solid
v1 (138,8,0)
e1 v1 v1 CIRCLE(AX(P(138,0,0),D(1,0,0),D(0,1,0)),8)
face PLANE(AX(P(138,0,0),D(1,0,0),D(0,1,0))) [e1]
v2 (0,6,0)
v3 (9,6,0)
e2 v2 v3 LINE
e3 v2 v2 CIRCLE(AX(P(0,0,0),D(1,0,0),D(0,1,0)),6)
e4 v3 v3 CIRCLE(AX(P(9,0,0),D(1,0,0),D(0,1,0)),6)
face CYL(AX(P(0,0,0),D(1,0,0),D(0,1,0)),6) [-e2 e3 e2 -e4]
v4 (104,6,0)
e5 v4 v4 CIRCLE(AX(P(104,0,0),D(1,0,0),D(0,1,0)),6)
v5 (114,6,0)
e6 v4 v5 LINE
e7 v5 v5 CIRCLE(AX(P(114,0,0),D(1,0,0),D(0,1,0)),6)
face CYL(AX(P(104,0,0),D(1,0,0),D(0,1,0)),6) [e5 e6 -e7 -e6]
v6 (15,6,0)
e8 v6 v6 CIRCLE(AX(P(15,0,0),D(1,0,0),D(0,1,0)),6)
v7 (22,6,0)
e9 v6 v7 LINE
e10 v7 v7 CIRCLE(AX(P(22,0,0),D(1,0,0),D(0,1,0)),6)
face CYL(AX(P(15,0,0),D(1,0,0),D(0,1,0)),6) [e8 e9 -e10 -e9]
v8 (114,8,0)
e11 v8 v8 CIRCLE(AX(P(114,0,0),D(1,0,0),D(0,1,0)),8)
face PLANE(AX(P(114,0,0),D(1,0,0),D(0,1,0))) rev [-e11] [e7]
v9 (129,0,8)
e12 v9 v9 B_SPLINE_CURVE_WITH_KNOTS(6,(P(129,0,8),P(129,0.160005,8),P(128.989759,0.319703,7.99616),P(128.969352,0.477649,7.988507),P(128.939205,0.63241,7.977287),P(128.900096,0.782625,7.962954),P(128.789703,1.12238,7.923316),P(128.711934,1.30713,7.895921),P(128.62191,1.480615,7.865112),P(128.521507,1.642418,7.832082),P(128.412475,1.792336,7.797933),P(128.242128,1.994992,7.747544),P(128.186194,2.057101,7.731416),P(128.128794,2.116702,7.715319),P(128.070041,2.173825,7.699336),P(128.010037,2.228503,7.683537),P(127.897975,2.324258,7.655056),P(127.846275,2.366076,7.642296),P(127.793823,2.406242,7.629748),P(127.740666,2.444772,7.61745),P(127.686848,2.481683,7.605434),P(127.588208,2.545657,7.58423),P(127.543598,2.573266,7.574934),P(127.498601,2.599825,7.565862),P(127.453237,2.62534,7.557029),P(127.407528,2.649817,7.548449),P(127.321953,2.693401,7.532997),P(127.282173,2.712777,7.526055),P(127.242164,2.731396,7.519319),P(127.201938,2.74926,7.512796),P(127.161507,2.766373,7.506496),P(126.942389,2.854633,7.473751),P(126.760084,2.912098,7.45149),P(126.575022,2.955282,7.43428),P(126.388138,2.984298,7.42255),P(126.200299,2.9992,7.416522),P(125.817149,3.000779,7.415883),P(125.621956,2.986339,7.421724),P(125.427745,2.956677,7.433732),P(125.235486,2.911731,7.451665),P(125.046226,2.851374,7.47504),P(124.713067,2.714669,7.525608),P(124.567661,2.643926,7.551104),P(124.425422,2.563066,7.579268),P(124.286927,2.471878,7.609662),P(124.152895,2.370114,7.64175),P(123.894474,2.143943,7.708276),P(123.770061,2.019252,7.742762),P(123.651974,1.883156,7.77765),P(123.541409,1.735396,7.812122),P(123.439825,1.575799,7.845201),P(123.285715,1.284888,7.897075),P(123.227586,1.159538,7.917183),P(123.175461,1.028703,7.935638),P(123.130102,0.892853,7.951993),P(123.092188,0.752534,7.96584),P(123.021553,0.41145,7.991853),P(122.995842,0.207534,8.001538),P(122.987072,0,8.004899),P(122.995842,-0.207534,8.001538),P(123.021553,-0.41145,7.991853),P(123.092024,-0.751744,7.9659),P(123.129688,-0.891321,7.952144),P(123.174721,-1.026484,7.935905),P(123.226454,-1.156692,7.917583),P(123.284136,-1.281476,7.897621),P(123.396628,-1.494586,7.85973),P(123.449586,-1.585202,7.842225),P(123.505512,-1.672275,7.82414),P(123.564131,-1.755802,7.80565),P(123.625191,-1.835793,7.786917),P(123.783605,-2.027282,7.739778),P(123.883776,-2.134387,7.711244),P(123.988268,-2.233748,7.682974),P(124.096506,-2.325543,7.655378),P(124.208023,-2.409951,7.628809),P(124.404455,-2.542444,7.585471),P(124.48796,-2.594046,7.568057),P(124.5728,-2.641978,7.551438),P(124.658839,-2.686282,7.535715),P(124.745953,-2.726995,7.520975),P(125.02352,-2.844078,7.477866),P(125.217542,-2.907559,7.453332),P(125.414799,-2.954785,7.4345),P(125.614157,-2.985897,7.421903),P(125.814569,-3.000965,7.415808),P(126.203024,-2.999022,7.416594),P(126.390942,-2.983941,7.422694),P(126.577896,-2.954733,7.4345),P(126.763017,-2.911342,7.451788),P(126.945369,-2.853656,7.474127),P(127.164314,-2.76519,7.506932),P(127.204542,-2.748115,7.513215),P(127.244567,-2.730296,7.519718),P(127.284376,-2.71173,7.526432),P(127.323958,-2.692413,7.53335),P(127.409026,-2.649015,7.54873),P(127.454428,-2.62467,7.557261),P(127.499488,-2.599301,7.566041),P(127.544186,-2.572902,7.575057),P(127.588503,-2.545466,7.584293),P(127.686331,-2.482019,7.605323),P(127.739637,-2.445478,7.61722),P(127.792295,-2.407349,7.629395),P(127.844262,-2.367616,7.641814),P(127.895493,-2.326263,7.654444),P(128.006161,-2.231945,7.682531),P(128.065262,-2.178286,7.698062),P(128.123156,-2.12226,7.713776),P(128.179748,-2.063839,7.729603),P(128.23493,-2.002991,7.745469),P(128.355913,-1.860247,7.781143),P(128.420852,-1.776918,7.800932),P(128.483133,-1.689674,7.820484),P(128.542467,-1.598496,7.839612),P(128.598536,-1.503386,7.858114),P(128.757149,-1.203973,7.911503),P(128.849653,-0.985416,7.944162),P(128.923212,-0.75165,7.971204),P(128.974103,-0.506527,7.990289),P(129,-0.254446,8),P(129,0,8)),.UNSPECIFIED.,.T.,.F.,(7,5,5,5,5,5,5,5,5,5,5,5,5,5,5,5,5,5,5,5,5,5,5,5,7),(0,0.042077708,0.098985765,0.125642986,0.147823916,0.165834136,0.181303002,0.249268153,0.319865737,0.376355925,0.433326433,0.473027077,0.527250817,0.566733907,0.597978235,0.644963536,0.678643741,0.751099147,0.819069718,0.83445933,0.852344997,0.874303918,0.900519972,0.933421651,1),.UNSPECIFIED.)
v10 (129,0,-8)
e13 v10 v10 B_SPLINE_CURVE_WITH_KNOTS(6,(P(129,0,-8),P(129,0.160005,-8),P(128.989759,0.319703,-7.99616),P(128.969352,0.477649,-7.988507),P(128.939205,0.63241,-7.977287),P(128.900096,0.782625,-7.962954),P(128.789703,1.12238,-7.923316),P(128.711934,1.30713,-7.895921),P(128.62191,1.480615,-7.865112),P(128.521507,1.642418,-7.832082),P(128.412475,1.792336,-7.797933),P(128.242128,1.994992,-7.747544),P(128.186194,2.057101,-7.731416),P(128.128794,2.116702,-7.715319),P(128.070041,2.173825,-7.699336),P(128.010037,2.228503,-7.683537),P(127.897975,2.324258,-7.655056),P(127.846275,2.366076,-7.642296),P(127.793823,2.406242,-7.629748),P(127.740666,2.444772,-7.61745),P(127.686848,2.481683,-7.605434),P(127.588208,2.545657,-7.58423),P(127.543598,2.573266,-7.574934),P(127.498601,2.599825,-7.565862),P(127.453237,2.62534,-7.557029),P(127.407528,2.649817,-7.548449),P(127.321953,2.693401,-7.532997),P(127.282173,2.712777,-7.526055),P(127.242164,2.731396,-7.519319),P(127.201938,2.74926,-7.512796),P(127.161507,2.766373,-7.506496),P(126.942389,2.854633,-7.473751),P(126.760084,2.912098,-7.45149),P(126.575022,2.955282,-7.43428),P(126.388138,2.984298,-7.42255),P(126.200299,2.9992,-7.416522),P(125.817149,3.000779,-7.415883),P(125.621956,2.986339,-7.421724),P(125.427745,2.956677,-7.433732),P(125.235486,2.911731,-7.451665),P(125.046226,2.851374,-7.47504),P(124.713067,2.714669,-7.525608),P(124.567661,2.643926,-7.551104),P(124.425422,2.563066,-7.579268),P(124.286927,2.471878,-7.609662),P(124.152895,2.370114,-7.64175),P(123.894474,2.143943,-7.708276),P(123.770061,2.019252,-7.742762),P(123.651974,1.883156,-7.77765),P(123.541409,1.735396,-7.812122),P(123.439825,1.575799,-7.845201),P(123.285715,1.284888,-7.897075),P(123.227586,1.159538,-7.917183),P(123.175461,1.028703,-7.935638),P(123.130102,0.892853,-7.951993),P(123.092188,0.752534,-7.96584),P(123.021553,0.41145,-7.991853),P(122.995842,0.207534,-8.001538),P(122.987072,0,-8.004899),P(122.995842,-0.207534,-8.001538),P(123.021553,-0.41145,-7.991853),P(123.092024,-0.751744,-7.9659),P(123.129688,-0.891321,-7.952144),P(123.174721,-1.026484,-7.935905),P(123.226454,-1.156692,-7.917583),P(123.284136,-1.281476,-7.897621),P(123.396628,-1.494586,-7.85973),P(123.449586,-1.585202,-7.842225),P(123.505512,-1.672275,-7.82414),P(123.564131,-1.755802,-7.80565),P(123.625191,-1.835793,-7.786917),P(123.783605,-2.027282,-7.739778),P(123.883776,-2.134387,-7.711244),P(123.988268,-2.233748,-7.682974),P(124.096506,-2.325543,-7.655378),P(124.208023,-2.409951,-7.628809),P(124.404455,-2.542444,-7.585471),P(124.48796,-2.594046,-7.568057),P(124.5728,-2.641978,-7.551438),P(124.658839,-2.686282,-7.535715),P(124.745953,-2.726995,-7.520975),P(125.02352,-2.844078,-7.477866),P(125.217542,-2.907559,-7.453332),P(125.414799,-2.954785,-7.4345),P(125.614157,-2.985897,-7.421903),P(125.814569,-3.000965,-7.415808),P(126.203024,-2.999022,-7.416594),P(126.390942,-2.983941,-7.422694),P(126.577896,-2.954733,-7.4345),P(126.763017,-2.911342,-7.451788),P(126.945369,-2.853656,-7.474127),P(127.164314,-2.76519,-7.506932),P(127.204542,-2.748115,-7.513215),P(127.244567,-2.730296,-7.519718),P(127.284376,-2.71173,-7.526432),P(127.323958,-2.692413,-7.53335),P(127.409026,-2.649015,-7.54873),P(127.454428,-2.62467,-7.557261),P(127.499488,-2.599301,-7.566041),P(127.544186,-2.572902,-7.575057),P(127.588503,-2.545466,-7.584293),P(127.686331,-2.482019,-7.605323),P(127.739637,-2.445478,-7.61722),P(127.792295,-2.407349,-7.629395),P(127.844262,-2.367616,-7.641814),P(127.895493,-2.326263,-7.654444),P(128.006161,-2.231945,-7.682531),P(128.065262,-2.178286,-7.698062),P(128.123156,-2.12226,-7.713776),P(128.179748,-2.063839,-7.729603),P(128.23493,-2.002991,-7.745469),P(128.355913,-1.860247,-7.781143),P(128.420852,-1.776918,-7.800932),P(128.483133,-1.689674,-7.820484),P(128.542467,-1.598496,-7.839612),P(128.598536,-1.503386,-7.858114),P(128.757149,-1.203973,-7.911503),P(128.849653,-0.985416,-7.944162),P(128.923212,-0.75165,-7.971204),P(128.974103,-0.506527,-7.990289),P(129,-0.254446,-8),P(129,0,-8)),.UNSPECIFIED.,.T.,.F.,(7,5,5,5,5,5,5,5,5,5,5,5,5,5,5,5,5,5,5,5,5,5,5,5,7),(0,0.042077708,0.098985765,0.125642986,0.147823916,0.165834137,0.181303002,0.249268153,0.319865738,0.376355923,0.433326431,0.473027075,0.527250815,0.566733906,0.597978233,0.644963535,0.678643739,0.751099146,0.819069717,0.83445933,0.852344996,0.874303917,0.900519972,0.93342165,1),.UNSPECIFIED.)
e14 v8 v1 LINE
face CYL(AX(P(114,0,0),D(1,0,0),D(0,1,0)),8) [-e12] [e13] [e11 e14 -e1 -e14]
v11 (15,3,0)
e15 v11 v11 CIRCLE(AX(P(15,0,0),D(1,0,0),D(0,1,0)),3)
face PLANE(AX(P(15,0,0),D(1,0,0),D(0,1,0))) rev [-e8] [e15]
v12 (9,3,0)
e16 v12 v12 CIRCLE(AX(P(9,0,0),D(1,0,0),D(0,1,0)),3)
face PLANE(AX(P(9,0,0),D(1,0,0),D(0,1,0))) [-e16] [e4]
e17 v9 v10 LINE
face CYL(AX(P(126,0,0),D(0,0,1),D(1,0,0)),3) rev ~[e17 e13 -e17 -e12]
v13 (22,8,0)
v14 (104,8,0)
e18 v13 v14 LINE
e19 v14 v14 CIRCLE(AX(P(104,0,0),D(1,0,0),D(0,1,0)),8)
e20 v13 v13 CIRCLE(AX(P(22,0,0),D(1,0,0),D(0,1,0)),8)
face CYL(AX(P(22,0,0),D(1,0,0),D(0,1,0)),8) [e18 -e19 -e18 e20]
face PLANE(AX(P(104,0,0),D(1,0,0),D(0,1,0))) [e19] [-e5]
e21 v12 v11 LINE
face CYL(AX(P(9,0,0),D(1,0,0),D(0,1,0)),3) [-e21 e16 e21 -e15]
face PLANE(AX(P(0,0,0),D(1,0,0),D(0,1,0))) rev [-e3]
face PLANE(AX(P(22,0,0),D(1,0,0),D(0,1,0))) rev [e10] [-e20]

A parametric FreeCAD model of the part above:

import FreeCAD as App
import Part
import Sketcher
Q = App.Units.Quantity

doc = App.newDocument("Part")
body = doc.addObject("PartDesign::Body", "Body")

# Sketch on XY plane
sketch1 = body.newObject("Sketcher::SketchObject", "Sketch")
sketch1.AttachmentSupport = (doc.getObject("XY_Plane"), [""])
sketch1.MapMode = "FlatFace"
sketch1.addGeometry(Part.LineSegment(App.Vector(0, 6, 0), App.Vector(0, 0, 0)), False)
sketch1.addGeometry(Part.LineSegment(App.Vector(0, 0, 0), App.Vector(138, 0, 0)), False)
sketch1.addGeometry(Part.LineSegment(App.Vector(138, 0, 0), App.Vector(138, 8, 0)), False)
sketch1.addGeometry(Part.LineSegment(App.Vector(138, 8, 0), App.Vector(114, 8, 0)), False)
sketch1.addGeometry(Part.LineSegment(App.Vector(114, 8, 0), App.Vector(114, 6, 0)), False)
sketch1.addGeometry(Part.LineSegment(App.Vector(114, 6, 0), App.Vector(104, 6, 0)), False)
sketch1.addGeometry(Part.LineSegment(App.Vector(104, 6, 0), App.Vector(104, 8, 0)), False)
sketch1.addGeometry(Part.LineSegment(App.Vector(104, 8, 0), App.Vector(22, 8, 0)), False)
sketch1.addGeometry(Part.LineSegment(App.Vector(22, 8, 0), App.Vector(22, 6, 0)), False)
sketch1.addGeometry(Part.LineSegment(App.Vector(22, 6, 0), App.Vector(15, 6, 0)), False)
sketch1.addGeometry(Part.LineSegment(App.Vector(15, 6, 0), App.Vector(15, 3, 0)), False)
sketch1.addGeometry(Part.LineSegment(App.Vector(15, 3, 0), App.Vector(9, 3, 0)), False)
sketch1.addGeometry(Part.LineSegment(App.Vector(9, 3, 0), App.Vector(9, 6, 0)), False)
sketch1.addGeometry(Part.LineSegment(App.Vector(9, 6, 0), App.Vector(0, 6, 0)), False)
sketch1.addConstraint(Sketcher.Constraint("Coincident", 0, 2, 1, 1))
sketch1.addConstraint(Sketcher.Constraint("Coincident", 1, 2, 2, 1))
sketch1.addConstraint(Sketcher.Constraint("Coincident", 2, 2, 3, 1))
sketch1.addConstraint(Sketcher.Constraint("Coincident", 3, 2, 4, 1))
sketch1.addConstraint(Sketcher.Constraint("Coincident", 4, 2, 5, 1))
sketch1.addConstraint(Sketcher.Constraint("Coincident", 5, 2, 6, 1))
sketch1.addConstraint(Sketcher.Constraint("Coincident", 6, 2, 7, 1))
sketch1.addConstraint(Sketcher.Constraint("Coincident", 7, 2, 8, 1))
sketch1.addConstraint(Sketcher.Constraint("Coincident", 8, 2, 9, 1))
sketch1.addConstraint(Sketcher.Constraint("Coincident", 9, 2, 10, 1))
sketch1.addConstraint(Sketcher.Constraint("Coincident", 10, 2, 11, 1))
sketch1.addConstraint(Sketcher.Constraint("Coincident", 11, 2, 12, 1))
sketch1.addConstraint(Sketcher.Constraint("Coincident", 12, 2, 13, 1))
sketch1.addConstraint(Sketcher.Constraint("Coincident", 13, 2, 0, 1))
sketch1.addConstraint(Sketcher.Constraint("Vertical", 0))
sketch1.addConstraint(Sketcher.Constraint("Horizontal", 1))
sketch1.addConstraint(Sketcher.Constraint("Vertical", 2))
sketch1.addConstraint(Sketcher.Constraint("Horizontal", 3))
sketch1.addConstraint(Sketcher.Constraint("Vertical", 4))
sketch1.addConstraint(Sketcher.Constraint("Horizontal", 5))
sketch1.addConstraint(Sketcher.Constraint("Vertical", 6))
sketch1.addConstraint(Sketcher.Constraint("Horizontal", 7))
sketch1.addConstraint(Sketcher.Constraint("Vertical", 8))
sketch1.addConstraint(Sketcher.Constraint("Horizontal", 9))
sketch1.addConstraint(Sketcher.Constraint("Vertical", 10))
sketch1.addConstraint(Sketcher.Constraint("Horizontal", 11))
sketch1.addConstraint(Sketcher.Constraint("Vertical", 12))
sketch1.addConstraint(Sketcher.Constraint("Horizontal", 13))
sketch1.addConstraint(Sketcher.Constraint("Coincident", 0, 2, -1, 1))
sketch1.addConstraint(Sketcher.Constraint("Horizontal", 3, 2, 6, 2))
sketch1.addConstraint(Sketcher.Constraint("Horizontal", 5, 2, 8, 2))
sketch1.addConstraint(Sketcher.Constraint("Horizontal", 9, 2, 12, 2))
sketch1.addConstraint(Sketcher.Constraint("Equal", 11, 0))
sketch1.addConstraint(Sketcher.Constraint("DistanceX", 1, 1, 1, 2, Q("138 mm")))
sketch1.addConstraint(Sketcher.Constraint("DistanceX", 3, 2, 3, 1, Q("24 mm")))
sketch1.addConstraint(Sketcher.Constraint("DistanceX", 5, 2, 5, 1, Q("10 mm")))
sketch1.addConstraint(Sketcher.Constraint("DistanceX", 7, 2, 7, 1, Q("82 mm")))
sketch1.addConstraint(Sketcher.Constraint("DistanceX", 9, 2, 9, 1, Q("7 mm")))
sketch1.addConstraint(Sketcher.Constraint("DistanceX", 11, 2, 11, 1, Q("6 mm")))
sketch1.addConstraint(Sketcher.Constraint("DistanceY", 2, 1, 2, 2, Q("8 mm")))
sketch1.addConstraint(Sketcher.Constraint("DistanceY", 10, 2, 10, 1, Q("3 mm")))
revolution = body.newObject("PartDesign::Revolution", "Revolution")
revolution.Profile = sketch1
revolution.ReferenceAxis = (sketch1, ["H_Axis"])
revolution.Angle = 360

# Sketch on XY plane
sketch2 = body.newObject("Sketcher::SketchObject", "Sketch001")
sketch2.AttachmentSupport = (doc.getObject("XY_Plane"), [""])
sketch2.MapMode = "FlatFace"
sketch2.addGeometry(Part.Circle(App.Vector(126, 0, 0), App.Vector(0, 0, 1), 3), False)
sketch2.addConstraint(Sketcher.Constraint("PointOnObject", 0, 3, -1))
sketch2.addConstraint(Sketcher.Constraint("Diameter", 0, Q("6 mm")))
sketch2.addConstraint(Sketcher.Constraint("DistanceX", -1, 1, 0, 3, Q("126 mm")))
pocket1 = body.newObject("PartDesign::Pocket", "Pocket")
pocket1.Profile = sketch2
pocket1.Type = "ThroughAll"
pocket1.Midplane = True

doc.recompute()
